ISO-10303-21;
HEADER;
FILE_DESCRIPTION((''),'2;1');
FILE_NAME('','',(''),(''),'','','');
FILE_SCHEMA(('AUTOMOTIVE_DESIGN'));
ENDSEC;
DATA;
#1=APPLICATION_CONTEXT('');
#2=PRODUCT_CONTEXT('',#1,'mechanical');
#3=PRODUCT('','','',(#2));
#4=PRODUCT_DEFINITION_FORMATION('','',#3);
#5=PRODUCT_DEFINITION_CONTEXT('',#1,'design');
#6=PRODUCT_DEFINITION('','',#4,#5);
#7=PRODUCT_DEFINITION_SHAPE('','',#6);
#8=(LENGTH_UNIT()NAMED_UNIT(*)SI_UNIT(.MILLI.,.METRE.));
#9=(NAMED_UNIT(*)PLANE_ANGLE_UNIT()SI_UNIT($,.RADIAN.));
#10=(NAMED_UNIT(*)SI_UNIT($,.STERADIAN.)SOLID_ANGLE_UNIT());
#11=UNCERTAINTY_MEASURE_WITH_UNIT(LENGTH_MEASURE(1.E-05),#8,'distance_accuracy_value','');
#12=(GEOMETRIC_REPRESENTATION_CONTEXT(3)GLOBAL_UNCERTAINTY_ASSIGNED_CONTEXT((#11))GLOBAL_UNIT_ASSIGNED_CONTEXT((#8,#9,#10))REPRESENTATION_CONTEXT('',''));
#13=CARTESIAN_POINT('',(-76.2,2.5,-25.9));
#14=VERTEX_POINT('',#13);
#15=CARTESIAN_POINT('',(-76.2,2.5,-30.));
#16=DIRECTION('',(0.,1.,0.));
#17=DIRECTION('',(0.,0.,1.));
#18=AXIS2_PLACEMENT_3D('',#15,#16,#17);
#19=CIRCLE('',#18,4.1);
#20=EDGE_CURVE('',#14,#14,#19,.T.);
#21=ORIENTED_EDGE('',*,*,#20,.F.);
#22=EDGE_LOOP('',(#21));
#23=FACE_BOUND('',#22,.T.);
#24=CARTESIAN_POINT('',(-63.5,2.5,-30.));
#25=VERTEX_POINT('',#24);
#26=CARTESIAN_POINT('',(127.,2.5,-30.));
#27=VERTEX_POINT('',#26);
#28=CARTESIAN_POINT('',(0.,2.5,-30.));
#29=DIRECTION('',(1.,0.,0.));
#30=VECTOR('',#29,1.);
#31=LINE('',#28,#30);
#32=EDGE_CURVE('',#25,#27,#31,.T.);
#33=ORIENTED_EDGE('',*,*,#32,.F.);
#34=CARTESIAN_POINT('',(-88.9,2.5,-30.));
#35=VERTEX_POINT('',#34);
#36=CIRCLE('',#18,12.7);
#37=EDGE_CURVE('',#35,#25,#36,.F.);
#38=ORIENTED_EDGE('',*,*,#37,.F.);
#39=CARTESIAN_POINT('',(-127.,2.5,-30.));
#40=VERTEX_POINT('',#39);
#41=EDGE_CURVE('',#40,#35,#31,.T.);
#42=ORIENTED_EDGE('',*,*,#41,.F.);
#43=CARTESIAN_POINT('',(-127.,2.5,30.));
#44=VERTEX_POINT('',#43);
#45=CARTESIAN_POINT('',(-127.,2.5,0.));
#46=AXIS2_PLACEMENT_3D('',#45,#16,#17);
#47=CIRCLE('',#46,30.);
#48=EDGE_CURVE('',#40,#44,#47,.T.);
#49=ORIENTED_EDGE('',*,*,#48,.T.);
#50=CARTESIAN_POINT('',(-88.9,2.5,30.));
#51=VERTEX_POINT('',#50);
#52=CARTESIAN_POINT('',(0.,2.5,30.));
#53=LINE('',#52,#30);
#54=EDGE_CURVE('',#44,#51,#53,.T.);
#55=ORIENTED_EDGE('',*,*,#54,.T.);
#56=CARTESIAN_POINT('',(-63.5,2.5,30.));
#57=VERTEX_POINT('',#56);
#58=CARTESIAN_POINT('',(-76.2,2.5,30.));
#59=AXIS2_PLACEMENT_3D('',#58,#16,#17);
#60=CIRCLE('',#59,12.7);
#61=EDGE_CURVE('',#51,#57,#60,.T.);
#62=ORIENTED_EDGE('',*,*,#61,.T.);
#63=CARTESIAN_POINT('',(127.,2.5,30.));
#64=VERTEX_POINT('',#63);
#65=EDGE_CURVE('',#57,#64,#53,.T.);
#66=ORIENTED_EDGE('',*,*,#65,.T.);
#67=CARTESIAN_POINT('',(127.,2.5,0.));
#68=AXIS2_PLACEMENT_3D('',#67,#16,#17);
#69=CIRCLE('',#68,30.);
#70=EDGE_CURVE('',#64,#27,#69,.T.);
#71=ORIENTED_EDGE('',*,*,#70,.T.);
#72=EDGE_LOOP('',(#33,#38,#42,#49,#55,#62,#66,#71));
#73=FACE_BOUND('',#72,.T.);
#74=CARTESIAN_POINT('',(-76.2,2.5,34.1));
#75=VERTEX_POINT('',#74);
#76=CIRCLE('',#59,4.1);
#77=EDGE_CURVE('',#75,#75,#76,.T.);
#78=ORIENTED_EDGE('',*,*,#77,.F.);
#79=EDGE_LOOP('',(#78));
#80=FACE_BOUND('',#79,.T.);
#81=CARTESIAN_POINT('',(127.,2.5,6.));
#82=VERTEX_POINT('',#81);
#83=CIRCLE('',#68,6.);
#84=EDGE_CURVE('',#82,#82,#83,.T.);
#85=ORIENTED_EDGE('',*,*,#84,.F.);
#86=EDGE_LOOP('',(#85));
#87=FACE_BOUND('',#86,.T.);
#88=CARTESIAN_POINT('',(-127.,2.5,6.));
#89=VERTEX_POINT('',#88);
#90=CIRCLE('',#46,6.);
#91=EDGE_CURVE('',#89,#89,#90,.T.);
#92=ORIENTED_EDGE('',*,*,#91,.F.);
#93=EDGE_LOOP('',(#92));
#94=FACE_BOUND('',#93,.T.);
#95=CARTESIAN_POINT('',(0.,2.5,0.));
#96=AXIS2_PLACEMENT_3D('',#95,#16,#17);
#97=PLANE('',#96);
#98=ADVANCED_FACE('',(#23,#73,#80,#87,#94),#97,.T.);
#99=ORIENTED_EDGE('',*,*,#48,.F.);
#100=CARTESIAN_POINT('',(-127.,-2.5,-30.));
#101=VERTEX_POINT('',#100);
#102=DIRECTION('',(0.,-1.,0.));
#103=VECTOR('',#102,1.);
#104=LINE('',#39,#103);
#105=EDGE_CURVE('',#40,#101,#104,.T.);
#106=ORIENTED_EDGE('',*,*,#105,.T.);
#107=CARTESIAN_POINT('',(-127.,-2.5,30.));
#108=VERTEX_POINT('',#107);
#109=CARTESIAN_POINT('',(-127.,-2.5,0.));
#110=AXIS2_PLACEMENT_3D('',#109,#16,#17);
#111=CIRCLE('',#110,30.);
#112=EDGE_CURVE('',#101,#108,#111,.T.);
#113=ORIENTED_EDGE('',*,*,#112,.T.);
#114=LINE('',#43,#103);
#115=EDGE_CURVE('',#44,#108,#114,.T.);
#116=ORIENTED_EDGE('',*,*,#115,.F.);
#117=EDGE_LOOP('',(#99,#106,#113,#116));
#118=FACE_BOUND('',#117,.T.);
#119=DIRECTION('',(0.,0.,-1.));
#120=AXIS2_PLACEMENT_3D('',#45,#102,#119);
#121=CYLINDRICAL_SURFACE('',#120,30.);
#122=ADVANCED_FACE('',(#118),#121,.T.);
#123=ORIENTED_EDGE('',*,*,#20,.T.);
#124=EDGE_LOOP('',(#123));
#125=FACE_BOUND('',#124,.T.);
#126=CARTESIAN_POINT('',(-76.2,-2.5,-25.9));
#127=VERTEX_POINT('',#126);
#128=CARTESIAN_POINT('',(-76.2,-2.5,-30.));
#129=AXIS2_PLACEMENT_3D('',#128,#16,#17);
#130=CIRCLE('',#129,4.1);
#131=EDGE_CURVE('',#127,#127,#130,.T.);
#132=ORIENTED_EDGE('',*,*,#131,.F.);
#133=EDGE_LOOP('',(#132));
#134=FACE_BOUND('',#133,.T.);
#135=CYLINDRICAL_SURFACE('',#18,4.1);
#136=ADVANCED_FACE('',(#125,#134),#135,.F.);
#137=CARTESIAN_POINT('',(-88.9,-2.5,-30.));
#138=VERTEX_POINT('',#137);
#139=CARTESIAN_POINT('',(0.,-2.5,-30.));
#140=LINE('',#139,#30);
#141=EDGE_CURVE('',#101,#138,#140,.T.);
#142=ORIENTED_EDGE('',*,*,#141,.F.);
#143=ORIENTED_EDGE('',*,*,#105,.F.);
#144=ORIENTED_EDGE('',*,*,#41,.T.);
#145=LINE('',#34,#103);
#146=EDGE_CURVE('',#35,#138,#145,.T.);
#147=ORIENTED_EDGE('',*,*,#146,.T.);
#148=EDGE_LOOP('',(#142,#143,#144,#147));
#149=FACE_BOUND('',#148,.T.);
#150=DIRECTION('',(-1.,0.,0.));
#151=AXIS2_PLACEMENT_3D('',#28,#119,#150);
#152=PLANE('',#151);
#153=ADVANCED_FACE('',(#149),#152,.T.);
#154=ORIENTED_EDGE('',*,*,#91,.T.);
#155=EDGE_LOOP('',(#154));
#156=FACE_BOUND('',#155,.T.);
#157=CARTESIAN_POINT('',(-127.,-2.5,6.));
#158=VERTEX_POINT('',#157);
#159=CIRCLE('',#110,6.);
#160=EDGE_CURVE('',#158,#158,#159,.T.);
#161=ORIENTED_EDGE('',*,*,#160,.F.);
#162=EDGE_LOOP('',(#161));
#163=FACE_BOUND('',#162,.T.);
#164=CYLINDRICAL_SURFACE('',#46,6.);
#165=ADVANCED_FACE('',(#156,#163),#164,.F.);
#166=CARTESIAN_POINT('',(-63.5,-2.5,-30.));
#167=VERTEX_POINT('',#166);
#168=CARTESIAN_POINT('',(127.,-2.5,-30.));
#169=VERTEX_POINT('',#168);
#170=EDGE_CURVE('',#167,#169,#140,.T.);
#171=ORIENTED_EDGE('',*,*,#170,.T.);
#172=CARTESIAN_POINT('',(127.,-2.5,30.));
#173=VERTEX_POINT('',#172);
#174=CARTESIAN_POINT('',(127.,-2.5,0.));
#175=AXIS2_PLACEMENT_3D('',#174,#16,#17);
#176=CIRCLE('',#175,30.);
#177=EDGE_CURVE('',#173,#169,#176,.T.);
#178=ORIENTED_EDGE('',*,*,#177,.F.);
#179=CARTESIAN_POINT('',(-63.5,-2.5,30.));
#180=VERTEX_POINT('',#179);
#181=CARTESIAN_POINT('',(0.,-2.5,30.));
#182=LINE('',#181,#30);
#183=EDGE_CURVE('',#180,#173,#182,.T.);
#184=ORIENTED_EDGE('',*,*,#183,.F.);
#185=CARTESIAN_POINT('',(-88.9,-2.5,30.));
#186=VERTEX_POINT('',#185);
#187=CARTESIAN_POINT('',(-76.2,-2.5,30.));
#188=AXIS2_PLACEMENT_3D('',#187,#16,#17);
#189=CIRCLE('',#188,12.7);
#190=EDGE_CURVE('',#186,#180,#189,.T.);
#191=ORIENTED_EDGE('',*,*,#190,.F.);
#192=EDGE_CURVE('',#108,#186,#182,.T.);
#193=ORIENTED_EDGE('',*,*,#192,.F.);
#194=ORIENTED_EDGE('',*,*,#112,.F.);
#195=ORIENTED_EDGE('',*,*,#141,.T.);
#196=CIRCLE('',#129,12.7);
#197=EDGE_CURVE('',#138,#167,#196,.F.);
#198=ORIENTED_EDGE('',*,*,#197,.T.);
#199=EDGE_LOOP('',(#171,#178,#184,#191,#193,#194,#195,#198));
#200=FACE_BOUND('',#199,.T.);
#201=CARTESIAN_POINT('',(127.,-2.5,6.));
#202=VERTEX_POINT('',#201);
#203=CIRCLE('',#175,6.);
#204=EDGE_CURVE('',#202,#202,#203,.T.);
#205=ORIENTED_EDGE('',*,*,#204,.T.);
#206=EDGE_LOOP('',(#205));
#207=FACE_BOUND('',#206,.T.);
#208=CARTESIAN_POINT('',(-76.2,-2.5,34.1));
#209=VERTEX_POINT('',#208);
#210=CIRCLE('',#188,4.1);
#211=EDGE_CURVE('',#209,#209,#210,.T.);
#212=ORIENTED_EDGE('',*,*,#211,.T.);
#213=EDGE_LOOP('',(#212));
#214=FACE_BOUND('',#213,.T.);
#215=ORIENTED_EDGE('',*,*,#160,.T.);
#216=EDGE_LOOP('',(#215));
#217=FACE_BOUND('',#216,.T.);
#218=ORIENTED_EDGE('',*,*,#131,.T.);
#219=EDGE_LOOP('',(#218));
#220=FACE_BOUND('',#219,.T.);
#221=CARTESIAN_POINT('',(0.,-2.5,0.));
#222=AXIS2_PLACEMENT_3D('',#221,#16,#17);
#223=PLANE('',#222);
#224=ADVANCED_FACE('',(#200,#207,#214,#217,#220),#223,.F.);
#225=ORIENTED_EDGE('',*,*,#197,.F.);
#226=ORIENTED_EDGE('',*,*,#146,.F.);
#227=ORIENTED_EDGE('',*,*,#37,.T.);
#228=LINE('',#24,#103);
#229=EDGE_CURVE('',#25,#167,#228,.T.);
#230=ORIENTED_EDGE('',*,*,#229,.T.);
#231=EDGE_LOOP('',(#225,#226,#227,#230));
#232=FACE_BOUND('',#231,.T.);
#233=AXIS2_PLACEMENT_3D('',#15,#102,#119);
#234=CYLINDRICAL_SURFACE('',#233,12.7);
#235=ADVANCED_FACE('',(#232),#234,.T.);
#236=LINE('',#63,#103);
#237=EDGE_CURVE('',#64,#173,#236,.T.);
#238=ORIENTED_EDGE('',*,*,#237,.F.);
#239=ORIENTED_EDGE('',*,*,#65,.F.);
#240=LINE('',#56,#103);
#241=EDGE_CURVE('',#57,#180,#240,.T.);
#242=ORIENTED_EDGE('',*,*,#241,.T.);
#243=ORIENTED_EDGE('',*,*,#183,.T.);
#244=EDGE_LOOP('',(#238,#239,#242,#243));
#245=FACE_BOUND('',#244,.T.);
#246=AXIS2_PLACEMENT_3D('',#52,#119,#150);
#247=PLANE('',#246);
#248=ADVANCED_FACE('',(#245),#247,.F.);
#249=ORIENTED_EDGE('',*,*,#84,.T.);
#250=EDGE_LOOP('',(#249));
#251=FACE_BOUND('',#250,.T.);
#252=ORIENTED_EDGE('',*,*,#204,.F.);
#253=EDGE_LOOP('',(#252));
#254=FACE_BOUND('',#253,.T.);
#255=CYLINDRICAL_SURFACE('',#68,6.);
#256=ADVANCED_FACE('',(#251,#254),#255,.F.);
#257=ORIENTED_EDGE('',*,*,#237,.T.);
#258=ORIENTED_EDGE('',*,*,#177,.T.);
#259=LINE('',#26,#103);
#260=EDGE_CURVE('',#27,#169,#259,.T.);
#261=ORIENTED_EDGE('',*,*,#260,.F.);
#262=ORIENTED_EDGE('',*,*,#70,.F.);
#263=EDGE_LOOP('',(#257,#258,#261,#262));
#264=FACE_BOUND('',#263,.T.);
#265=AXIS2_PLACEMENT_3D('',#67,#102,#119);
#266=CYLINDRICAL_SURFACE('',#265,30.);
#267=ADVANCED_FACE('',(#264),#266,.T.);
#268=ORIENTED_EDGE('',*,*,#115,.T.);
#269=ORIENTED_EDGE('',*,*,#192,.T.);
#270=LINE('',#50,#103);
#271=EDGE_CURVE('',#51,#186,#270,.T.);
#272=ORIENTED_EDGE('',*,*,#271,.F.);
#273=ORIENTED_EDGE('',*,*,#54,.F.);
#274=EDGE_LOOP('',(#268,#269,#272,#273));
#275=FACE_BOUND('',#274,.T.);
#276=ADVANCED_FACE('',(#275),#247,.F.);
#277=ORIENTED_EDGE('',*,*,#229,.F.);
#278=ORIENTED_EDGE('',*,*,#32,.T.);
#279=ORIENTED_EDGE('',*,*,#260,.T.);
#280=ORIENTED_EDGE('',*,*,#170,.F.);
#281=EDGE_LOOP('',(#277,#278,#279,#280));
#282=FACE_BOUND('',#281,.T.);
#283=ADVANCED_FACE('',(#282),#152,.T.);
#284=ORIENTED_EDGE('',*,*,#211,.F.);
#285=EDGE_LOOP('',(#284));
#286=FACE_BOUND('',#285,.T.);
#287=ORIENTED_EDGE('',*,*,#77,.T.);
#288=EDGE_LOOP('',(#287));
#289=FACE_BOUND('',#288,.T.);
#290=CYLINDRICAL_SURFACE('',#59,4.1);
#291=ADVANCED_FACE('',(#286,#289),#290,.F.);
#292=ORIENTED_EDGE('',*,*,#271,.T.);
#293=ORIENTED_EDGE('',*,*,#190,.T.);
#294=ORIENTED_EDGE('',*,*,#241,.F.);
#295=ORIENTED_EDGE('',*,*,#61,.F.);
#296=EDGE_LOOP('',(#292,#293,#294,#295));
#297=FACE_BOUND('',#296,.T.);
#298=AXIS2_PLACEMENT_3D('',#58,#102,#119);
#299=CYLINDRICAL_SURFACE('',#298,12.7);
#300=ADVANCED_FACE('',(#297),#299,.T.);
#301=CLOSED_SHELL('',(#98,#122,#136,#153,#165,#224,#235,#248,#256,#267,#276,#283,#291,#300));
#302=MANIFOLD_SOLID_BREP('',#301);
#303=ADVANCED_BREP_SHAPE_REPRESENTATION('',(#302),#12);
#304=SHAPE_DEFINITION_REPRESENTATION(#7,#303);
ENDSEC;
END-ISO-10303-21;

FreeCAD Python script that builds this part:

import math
import FreeCAD as App
import Part
import Sketcher

V = App.Vector
Q = App.Units.Quantity

doc = App.newDocument("Part")
body = doc.addObject("PartDesign::Body", "Body")

sketch1 = body.newObject("Sketcher::SketchObject", "Sketch")
sketch1.AttachmentSupport = (doc.getObject("XZ_Plane"), [""])
sketch1.MapMode = "FlatFace"
sketch1.addGeometry(Part.LineSegment(V(-89, -30, 0), V(-127, -30, 0)), False)
sketch1.addGeometry(Part.ArcOfCircle(Part.Circle(V(-127, 0, 0), V(0, 0, 1), 30), math.radians(90), math.radians(270)), False)
sketch1.addGeometry(Part.LineSegment(V(-127, 30, 0), V(-89, 30, 0)), False)
sketch1.addGeometry(Part.ArcOfCircle(Part.Circle(V(-76, 30, 0), V(0, 0, 1), 13), math.radians(0), math.radians(180)), False)
sketch1.addGeometry(Part.LineSegment(V(-64, 30, 0), V(127, 30, 0)), False)
sketch1.addGeometry(Part.ArcOfCircle(Part.Circle(V(127, 0, 0), V(0, 0, 1), 30), math.radians(-90), math.radians(90)), False)
sketch1.addGeometry(Part.LineSegment(V(127, -30, 0), V(-64, -30, 0)), False)
sketch1.addGeometry(Part.ArcOfCircle(Part.Circle(V(-76, -30, 0), V(0, 0, 1), 13), math.radians(180), math.radians(360)), False)
sketch1.addConstraint(Sketcher.Constraint("Tangent", 0, 2, 1, 2))
sketch1.addConstraint(Sketcher.Constraint("Tangent", 1, 1, 2, 1))
sketch1.addConstraint(Sketcher.Constraint("Coincident", 2, 2, 3, 2))
sketch1.addConstraint(Sketcher.Constraint("Coincident", 3, 1, 4, 1))
sketch1.addConstraint(Sketcher.Constraint("Tangent", 4, 2, 5, 2))
sketch1.addConstraint(Sketcher.Constraint("Tangent", 5, 1, 6, 1))
sketch1.addConstraint(Sketcher.Constraint("Coincident", 6, 2, 7, 2))
sketch1.addConstraint(Sketcher.Constraint("Coincident", 7, 1, 0, 1))
sketch1.addConstraint(Sketcher.Constraint("Horizontal", 0))
sketch1.addConstraint(Sketcher.Constraint("Horizontal", 2))
sketch1.addConstraint(Sketcher.Constraint("Horizontal", 4))
sketch1.addConstraint(Sketcher.Constraint("Horizontal", 6))
sketch1.addConstraint(Sketcher.Constraint("Equal", 1, 5))
sketch1.addConstraint(Sketcher.Constraint("Equal", 3, 7))
sketch1.addConstraint(Sketcher.Constraint("Symmetric", 1, 3, 5, 3, -1, 1))
sketch1.addConstraint(Sketcher.Constraint("Symmetric", 3, 3, 7, 3, -1))
sketch1.addConstraint(Sketcher.Constraint("PointOnObject", 1, 3, -1))
sketch1.addConstraint(Sketcher.Constraint("Horizontal", 7, 3, 0, 2))
sketch1.addConstraint(Sketcher.Constraint("Radius", 1, Q("30 mm")))
sketch1.addConstraint(Sketcher.Constraint("Radius", 3, Q("12.7 mm")))
sketch1.addConstraint(Sketcher.Constraint("DistanceX", 0, 2, 0, 1, Q("38.1 mm")))
sketch1.addConstraint(Sketcher.Constraint("DistanceX", 4, 1, 4, 2, Q("190.5 mm")))
pad1 = body.newObject("PartDesign::Pad", "Pad")
pad1.Profile = sketch1
pad1.Length = 5
pad1.Midplane = True

sketch2 = body.newObject("Sketcher::SketchObject", "Sketch001")
sketch2.AttachmentSupport = (doc.getObject("XZ_Plane"), [""])
sketch2.MapMode = "FlatFace"
sketch2.AttachmentOffset = App.Placement(V(0, 0, -2.5), App.Rotation())
sketch2.addGeometry(Part.Circle(V(-127, 0, 0), V(0, 0, 1), 6), False)
sketch2.addGeometry(Part.Circle(V(127, 0, 0), V(0, 0, 1), 6), False)
sketch2.addConstraint(Sketcher.Constraint("Equal", 0, 1))
sketch2.addConstraint(Sketcher.Constraint("Symmetric", 0, 3, 1, 3, -1, 1))
sketch2.addConstraint(Sketcher.Constraint("PointOnObject", 0, 3, -1))
sketch2.addConstraint(Sketcher.Constraint("Diameter", 0, Q("12 mm")))
sketch2.addConstraint(Sketcher.Constraint("DistanceX", 0, 3, -1, 1, Q("127 mm")))
doc.recompute()
hole = body.newObject("PartDesign::Hole", "Hole")
hole.Profile = sketch2
hole.ThreadType = "None"
hole.Diameter = 12
hole.DepthType = "Dimension"
hole.Depth = 5
hole.DrillPoint = "Flat"
hole.Reversed = True

sketch3 = body.newObject("Sketcher::SketchObject", "Sketch002")
sketch3.AttachmentSupport = (doc.getObject("XZ_Plane"), [""])
sketch3.MapMode = "FlatFace"
sketch3.AttachmentOffset = App.Placement(V(0, 0, -2.5), App.Rotation())
sketch3.addGeometry(Part.Circle(V(-76.2, -30, 0), V(0, 0, 1), 4.1), False)
sketch3.addGeometry(Part.Circle(V(-76.2, 30, 0), V(0, 0, 1), 4.1), False)
sketch3.addConstraint(Sketcher.Constraint("Equal", 0, 1))
sketch3.addConstraint(Sketcher.Constraint("Symmetric", 0, 3, 1, 3, -1))
sketch3.addConstraint(Sketcher.Constraint("Diameter", 0, Q("8.2 mm")))
sketch3.addConstraint(Sketcher.Constraint("DistanceY", 0, 3, -1, 1, Q("30 mm")))
sketch3.addConstraint(Sketcher.Constraint("DistanceX", 0, 3, -1, 1, Q("76.2 mm")))
doc.recompute()
hole2 = body.newObject("PartDesign::Hole", "Hole001")
hole2.Profile = sketch3
hole2.ThreadType = "None"
hole2.Diameter = 8.2
hole2.DepthType = "Dimension"
hole2.Depth = 5
hole2.DrillPoint = "Flat"
hole2.Reversed = True

doc.recompute()
